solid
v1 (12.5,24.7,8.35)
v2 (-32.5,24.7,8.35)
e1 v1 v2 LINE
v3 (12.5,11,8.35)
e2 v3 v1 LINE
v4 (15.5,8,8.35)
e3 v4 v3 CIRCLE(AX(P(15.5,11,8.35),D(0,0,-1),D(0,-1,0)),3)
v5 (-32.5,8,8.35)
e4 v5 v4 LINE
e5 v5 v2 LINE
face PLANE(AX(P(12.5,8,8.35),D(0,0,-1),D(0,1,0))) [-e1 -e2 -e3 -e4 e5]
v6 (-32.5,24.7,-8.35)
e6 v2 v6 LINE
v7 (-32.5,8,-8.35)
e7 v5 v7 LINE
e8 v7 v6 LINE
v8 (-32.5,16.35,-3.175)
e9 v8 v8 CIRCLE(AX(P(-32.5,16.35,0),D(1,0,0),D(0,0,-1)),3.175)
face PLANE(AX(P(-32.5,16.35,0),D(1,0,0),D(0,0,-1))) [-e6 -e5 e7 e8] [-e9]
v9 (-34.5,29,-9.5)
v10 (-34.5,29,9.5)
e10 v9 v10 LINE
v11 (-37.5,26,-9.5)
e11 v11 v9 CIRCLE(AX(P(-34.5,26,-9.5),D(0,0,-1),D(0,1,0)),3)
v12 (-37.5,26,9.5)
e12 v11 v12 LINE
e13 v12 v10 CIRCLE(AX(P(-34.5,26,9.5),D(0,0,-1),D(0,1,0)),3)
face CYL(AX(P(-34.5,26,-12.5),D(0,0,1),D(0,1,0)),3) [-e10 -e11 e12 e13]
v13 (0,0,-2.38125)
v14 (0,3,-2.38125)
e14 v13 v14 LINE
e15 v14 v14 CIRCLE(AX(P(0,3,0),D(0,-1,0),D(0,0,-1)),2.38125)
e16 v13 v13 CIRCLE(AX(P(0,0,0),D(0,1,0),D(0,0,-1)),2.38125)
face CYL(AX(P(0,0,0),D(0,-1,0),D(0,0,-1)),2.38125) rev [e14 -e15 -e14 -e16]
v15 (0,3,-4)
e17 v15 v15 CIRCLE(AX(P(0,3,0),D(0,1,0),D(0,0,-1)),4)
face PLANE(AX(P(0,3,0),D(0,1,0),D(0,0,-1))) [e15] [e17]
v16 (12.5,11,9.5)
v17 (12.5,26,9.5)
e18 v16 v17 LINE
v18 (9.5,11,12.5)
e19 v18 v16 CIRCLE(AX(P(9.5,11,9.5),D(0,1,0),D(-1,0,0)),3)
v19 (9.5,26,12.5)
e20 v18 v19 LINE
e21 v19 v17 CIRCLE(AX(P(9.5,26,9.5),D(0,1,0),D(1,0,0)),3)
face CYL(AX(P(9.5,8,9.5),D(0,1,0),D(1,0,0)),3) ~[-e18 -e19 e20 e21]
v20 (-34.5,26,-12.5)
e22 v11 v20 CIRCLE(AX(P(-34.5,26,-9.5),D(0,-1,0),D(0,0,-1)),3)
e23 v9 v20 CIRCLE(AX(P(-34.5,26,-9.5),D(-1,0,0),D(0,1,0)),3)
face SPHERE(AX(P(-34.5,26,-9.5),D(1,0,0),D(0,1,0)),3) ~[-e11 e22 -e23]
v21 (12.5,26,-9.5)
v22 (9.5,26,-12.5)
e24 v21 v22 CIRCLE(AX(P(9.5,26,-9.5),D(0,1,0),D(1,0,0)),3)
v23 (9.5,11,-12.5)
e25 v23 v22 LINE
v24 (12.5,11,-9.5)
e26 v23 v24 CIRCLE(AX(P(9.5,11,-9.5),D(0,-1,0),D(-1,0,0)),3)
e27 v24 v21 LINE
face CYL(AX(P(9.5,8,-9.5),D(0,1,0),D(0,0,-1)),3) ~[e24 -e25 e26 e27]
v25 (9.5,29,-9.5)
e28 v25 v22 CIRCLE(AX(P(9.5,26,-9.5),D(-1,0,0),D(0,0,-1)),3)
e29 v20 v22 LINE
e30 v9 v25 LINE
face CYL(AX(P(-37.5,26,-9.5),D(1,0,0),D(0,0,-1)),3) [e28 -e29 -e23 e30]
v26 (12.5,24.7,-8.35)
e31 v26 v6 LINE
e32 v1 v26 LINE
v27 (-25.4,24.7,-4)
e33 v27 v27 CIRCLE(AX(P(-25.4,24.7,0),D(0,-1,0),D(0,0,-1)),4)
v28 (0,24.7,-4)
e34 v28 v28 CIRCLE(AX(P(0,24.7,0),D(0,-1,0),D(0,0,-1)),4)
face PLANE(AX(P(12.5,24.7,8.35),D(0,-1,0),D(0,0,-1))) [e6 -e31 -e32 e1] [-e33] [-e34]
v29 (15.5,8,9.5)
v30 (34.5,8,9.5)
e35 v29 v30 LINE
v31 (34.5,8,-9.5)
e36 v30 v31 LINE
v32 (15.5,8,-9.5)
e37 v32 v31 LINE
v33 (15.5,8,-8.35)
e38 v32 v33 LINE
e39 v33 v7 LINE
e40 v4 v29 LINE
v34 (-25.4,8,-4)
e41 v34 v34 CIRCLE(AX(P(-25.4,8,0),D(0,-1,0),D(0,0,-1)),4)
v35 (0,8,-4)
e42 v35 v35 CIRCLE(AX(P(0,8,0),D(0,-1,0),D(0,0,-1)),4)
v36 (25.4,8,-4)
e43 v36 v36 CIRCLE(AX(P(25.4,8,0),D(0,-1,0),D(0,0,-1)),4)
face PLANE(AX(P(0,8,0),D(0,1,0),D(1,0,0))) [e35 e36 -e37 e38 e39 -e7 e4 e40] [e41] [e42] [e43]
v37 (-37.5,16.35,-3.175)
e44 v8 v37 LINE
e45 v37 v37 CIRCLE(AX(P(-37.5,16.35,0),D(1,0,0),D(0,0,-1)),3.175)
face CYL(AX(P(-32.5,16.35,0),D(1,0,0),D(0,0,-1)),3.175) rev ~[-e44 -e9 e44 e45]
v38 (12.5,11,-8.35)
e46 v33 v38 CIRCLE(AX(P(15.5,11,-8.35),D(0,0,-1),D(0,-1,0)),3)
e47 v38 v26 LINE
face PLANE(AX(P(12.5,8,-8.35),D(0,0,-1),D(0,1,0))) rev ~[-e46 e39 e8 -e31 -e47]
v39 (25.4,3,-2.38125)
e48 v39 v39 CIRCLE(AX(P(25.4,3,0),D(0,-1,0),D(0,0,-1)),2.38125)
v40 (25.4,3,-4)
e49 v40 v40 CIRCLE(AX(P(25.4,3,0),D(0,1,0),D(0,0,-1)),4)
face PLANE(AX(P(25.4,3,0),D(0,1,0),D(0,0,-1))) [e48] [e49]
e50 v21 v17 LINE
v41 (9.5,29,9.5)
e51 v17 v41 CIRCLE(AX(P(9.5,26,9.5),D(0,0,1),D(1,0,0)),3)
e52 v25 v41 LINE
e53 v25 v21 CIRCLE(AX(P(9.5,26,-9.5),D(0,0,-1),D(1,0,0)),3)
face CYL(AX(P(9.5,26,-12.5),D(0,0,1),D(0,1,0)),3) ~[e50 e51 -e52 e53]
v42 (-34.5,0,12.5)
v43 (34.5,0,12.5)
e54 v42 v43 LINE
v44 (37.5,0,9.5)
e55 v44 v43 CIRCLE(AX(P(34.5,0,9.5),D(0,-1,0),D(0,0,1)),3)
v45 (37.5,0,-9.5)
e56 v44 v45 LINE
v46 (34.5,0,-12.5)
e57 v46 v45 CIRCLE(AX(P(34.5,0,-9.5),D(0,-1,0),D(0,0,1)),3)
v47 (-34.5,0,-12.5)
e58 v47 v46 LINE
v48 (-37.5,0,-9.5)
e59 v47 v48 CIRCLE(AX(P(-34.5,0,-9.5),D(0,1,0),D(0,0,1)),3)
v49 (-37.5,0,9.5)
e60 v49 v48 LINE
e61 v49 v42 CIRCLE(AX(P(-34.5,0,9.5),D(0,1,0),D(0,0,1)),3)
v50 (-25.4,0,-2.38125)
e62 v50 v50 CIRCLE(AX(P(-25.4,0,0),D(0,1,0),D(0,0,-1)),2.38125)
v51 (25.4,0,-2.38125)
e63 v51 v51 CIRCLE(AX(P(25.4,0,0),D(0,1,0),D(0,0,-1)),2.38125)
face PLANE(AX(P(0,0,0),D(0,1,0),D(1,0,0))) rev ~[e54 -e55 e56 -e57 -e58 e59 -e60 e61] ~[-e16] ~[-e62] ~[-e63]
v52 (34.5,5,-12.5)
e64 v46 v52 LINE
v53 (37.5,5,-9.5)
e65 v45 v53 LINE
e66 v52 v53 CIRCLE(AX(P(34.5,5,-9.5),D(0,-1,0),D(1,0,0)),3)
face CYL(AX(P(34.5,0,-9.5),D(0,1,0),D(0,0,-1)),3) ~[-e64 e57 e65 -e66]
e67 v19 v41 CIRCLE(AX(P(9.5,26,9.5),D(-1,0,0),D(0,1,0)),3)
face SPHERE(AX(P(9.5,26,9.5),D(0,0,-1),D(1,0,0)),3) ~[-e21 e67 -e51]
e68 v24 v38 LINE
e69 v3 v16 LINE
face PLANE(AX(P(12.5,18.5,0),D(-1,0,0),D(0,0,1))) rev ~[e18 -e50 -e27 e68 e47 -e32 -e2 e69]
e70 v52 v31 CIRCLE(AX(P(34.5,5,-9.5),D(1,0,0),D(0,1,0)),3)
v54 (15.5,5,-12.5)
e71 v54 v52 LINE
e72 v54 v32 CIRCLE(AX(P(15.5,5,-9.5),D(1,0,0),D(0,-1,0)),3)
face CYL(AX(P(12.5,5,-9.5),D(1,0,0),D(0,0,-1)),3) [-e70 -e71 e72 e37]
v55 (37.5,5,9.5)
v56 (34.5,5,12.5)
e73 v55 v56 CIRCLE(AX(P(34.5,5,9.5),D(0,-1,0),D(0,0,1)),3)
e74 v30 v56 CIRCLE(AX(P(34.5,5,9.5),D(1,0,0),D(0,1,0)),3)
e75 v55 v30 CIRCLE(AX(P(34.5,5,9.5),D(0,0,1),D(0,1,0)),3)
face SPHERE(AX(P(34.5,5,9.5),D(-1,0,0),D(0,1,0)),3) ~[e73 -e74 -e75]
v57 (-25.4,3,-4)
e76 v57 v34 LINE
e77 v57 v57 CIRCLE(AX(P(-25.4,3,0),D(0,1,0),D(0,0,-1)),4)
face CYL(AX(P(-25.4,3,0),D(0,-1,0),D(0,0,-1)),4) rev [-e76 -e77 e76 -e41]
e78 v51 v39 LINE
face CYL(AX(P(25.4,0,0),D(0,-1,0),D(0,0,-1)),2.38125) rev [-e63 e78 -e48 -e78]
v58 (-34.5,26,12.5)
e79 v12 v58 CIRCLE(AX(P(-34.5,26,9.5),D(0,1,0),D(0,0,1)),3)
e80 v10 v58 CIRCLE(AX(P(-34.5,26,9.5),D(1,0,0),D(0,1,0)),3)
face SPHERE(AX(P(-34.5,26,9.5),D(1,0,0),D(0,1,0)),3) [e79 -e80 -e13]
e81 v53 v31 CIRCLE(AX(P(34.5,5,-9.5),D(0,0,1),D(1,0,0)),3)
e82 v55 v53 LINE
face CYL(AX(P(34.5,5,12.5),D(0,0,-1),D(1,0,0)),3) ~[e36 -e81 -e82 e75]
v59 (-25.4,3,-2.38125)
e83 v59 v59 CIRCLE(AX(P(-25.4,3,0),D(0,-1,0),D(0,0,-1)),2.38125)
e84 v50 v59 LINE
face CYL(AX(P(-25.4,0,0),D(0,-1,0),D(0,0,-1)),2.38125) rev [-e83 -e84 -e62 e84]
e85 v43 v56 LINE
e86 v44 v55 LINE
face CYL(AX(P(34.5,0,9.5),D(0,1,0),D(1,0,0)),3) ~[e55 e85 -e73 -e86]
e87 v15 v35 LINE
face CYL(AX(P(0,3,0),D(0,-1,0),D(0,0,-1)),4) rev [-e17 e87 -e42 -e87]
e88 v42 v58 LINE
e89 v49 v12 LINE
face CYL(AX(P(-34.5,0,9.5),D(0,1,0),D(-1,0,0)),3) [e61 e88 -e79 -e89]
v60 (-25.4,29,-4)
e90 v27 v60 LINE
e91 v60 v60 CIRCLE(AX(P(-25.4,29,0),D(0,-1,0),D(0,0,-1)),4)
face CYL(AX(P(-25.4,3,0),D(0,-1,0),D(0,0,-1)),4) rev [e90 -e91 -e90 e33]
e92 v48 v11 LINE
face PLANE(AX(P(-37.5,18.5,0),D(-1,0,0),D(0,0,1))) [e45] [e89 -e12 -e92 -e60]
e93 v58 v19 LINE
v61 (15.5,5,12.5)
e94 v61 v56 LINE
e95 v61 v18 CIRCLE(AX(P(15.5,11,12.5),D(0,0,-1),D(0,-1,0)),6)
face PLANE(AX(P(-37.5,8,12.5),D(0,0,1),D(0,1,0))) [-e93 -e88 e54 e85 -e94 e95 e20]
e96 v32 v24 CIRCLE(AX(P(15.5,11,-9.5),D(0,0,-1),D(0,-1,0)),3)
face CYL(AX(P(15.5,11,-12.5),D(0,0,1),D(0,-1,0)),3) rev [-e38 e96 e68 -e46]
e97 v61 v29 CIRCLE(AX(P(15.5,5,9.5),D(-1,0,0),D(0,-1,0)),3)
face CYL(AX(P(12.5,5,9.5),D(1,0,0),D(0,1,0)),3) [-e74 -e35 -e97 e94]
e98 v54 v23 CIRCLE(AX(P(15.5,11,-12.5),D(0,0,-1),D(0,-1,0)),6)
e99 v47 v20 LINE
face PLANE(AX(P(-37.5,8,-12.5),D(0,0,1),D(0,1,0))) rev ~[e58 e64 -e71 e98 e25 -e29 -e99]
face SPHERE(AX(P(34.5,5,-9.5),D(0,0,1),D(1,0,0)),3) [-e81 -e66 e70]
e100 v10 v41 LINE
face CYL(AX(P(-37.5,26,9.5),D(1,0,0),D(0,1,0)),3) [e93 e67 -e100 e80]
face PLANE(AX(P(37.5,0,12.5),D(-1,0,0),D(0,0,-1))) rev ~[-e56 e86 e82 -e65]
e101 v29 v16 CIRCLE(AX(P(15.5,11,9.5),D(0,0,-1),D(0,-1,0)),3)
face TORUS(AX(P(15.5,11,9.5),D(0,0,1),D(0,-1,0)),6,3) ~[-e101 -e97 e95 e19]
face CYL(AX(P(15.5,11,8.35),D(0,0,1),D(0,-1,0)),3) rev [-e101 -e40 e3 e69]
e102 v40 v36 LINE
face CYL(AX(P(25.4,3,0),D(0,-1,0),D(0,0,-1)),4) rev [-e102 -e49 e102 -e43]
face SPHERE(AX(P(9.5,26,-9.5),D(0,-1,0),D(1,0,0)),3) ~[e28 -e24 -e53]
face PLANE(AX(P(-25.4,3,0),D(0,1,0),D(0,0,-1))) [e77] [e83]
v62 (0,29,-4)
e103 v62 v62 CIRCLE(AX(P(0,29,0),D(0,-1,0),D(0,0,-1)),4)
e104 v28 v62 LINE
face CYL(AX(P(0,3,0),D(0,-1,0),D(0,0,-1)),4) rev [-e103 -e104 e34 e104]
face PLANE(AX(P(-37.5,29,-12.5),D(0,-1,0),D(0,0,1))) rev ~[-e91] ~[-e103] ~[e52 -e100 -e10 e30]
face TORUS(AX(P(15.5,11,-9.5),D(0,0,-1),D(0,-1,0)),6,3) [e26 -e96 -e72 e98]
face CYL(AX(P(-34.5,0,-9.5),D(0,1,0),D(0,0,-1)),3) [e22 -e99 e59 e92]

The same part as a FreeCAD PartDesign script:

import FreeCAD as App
import Part
import Sketcher
Q = App.Units.Quantity


def edges_at(feature, points):
    """Names of the edges that pass closest to the given points."""
    edges = feature.Shape.Edges
    near = lambda p: min(range(len(edges)), key=lambda i: edges[i].distToShape(Part.Vertex(*p))[0])
    return sorted({f"Edge{near(p) + 1}" for p in points})

doc = App.newDocument("Part")
body = doc.addObject("PartDesign::Body", "Body")

sketch1 = doc.addObject("Sketcher::SketchObject", "Sketch")
body.addObject(sketch1)
sketch1.AttachmentSupport = (doc.XZ_Plane, [""])
sketch1.MapMode = "FlatFace"
sketch1.addGeometry(Part.LineSegment(App.Vector(-37.5, -12.5, 0), App.Vector(-37.5, 12.5, 0)), False)
sketch1.addGeometry(Part.LineSegment(App.Vector(-37.5, 12.5, 0), App.Vector(37.5, 12.5, 0)), False)
sketch1.addGeometry(Part.LineSegment(App.Vector(37.5, 12.5, 0), App.Vector(37.5, -12.5, 0)), False)
sketch1.addGeometry(Part.LineSegment(App.Vector(37.5, -12.5, 0), App.Vector(-37.5, -12.5, 0)), False)
sketch1.addConstraint(Sketcher.Constraint("Coincident", 0, 2, 1, 1))
sketch1.addConstraint(Sketcher.Constraint("Coincident", 1, 2, 2, 1))
sketch1.addConstraint(Sketcher.Constraint("Coincident", 2, 2, 3, 1))
sketch1.addConstraint(Sketcher.Constraint("Coincident", 3, 2, 0, 1))
sketch1.addConstraint(Sketcher.Constraint("Vertical", 0))
sketch1.addConstraint(Sketcher.Constraint("Horizontal", 1))
sketch1.addConstraint(Sketcher.Constraint("Vertical", 2))
sketch1.addConstraint(Sketcher.Constraint("Horizontal", 3))
sketch1.addConstraint(Sketcher.Constraint("Symmetric", 0, 2, 2, 2, -1, 1))
sketch1.addConstraint(Sketcher.Constraint("DistanceX", 1, 1, 1, 2, Q("75 mm")))
sketch1.addConstraint(Sketcher.Constraint("DistanceY", 0, 1, 0, 2, Q("25 mm")))
pad1 = doc.addObject("PartDesign::Pad", "Pad")
body.addObject(pad1)
pad1.Profile = sketch1
pad1.Length = 8
pad1.Reversed = True

sketch2 = doc.addObject("Sketcher::SketchObject", "Sketch001")
body.addObject(sketch2)
sketch2.AttachmentSupport = (doc.YZ_Plane, [""])
sketch2.MapMode = "FlatFace"
sketch2.AttachmentOffset = App.Placement(App.Vector(0, 0, -37.5), App.Rotation())
sketch2.addGeometry(Part.LineSegment(App.Vector(29, -12.5, 0), App.Vector(8, -12.5, 0)), False)
sketch2.addGeometry(Part.LineSegment(App.Vector(8, -12.5, 0), App.Vector(8, 12.5, 0)), False)
sketch2.addGeometry(Part.LineSegment(App.Vector(8, 12.5, 0), App.Vector(29, 12.5, 0)), False)
sketch2.addGeometry(Part.LineSegment(App.Vector(29, 12.5, 0), App.Vector(29, -12.5, 0)), False)
sketch2.addConstraint(Sketcher.Constraint("Coincident", 0, 2, 1, 1))
sketch2.addConstraint(Sketcher.Constraint("Coincident", 1, 2, 2, 1))
sketch2.addConstraint(Sketcher.Constraint("Coincident", 2, 2, 3, 1))
sketch2.addConstraint(Sketcher.Constraint("Coincident", 3, 2, 0, 1))
sketch2.addConstraint(Sketcher.Constraint("Horizontal", 0))
sketch2.addConstraint(Sketcher.Constraint("Vertical", 1))
sketch2.addConstraint(Sketcher.Constraint("Horizontal", 2))
sketch2.addConstraint(Sketcher.Constraint("Vertical", 3))
sketch2.addConstraint(Sketcher.Constraint("DistanceX", 0, 2, 0, 1, Q("21 mm")))
sketch2.addConstraint(Sketcher.Constraint("DistanceY", 1, 1, 1, 2, Q("25 mm")))
sketch2.addConstraint(Sketcher.Constraint("DistanceX", -1, 1, 0, 2, Q("8 mm")))
sketch2.addConstraint(Sketcher.Constraint("DistanceY", 0, 2, -1, 1, Q("12.5 mm")))
pad2 = doc.addObject("PartDesign::Pad", "Pad001")
body.addObject(pad2)
pad2.Profile = sketch2
pad2.Length = 50

sketch3 = doc.addObject("Sketcher::SketchObject", "Sketch002")
body.addObject(sketch3)
sketch3.AttachmentSupport = (doc.YZ_Plane, [""])
sketch3.MapMode = "FlatFace"
sketch3.AttachmentOffset = App.Placement(App.Vector(0, 0, 12.5), App.Rotation())
sketch3.addGeometry(Part.LineSegment(App.Vector(24.7, 8.35, 0), App.Vector(8, 8.35, 0)), False)
sketch3.addGeometry(Part.LineSegment(App.Vector(8, 8.35, 0), App.Vector(8, -8.35, 0)), False)
sketch3.addGeometry(Part.LineSegment(App.Vector(8, -8.35, 0), App.Vector(24.7, -8.35, 0)), False)
sketch3.addGeometry(Part.LineSegment(App.Vector(24.7, -8.35, 0), App.Vector(24.7, 8.35, 0)), False)
sketch3.addConstraint(Sketcher.Constraint("Coincident", 0, 2, 1, 1))
sketch3.addConstraint(Sketcher.Constraint("Coincident", 1, 2, 2, 1))
sketch3.addConstraint(Sketcher.Constraint("Coincident", 2, 2, 3, 1))
sketch3.addConstraint(Sketcher.Constraint("Coincident", 3, 2, 0, 1))
sketch3.addConstraint(Sketcher.Constraint("Horizontal", 0))
sketch3.addConstraint(Sketcher.Constraint("Vertical", 1))
sketch3.addConstraint(Sketcher.Constraint("Horizontal", 2))
sketch3.addConstraint(Sketcher.Constraint("Vertical", 3))
sketch3.addConstraint(Sketcher.Constraint("Equal", 2, 1))
sketch3.addConstraint(Sketcher.Constraint("DistanceX", 0, 2, 0, 1, Q("16.7 mm")))
sketch3.addConstraint(Sketcher.Constraint("DistanceX", -1, 1, 0, 2, Q("8 mm")))
sketch3.addConstraint(Sketcher.Constraint("DistanceY", -1, 1, 0, 2, Q("8.35 mm")))
pocket1 = doc.addObject("PartDesign::Pocket", "Pocket")
body.addObject(pocket1)
pocket1.Profile = sketch3
pocket1.Length = 45

sketch4 = doc.addObject("Sketcher::SketchObject", "Sketch003")
body.addObject(sketch4)
sketch4.AttachmentSupport = (doc.XZ_Plane, [""])
sketch4.MapMode = "FlatFace"
sketch4.addGeometry(Part.Circle(App.Vector(0, 0, 0), App.Vector(0, 0, 1), 2.38125), False)
sketch4.addGeometry(Part.Circle(App.Vector(25.4, 0, 0), App.Vector(0, 0, 1), 2.38125), False)
sketch4.addGeometry(Part.Circle(App.Vector(-25.4, 0, 0), App.Vector(0, 0, 1), 2.38125), False)
sketch4.addConstraint(Sketcher.Constraint("Coincident", 0, 3, -1, 1))
sketch4.addConstraint(Sketcher.Constraint("Equal", 0, 1))
sketch4.addConstraint(Sketcher.Constraint("Equal", 1, 2))
sketch4.addConstraint(Sketcher.Constraint("Symmetric", 1, 3, 2, 3, -1, 1))
sketch4.addConstraint(Sketcher.Constraint("PointOnObject", 1, 3, -1))
sketch4.addConstraint(Sketcher.Constraint("Diameter", 0, Q("4.7625 mm")))
sketch4.addConstraint(Sketcher.Constraint("DistanceX", -1, 1, 1, 3, Q("25.4 mm")))
pocket2 = doc.addObject("PartDesign::Pocket", "Pocket001")
body.addObject(pocket2)
pocket2.Profile = sketch4
pocket2.Type = "ThroughAll"

sketch5 = doc.addObject("Sketcher::SketchObject", "Sketch004")
body.addObject(sketch5)
sketch5.AttachmentSupport = (doc.XZ_Plane, [""])
sketch5.MapMode = "FlatFace"
sketch5.AttachmentOffset = App.Placement(App.Vector(0, 0, -8), App.Rotation())
sketch5.addGeometry(Part.Circle(App.Vector(0, 0, 0), App.Vector(0, 0, 1), 4), False)
sketch5.addGeometry(Part.Circle(App.Vector(25.4, 0, 0), App.Vector(0, 0, 1), 4), False)
sketch5.addGeometry(Part.Circle(App.Vector(-25.4, 0, 0), App.Vector(0, 0, 1), 4), False)
sketch5.addConstraint(Sketcher.Constraint("Coincident", 0, 3, -1, 1))
sketch5.addConstraint(Sketcher.Constraint("Equal", 0, 1))
sketch5.addConstraint(Sketcher.Constraint("Equal", 1, 2))
sketch5.addConstraint(Sketcher.Constraint("Symmetric", 1, 3, 2, 3, -1, 1))
sketch5.addConstraint(Sketcher.Constraint("PointOnObject", 1, 3, -1))
sketch5.addConstraint(Sketcher.Constraint("Diameter", 0, Q("8 mm")))
sketch5.addConstraint(Sketcher.Constraint("DistanceX", -1, 1, 1, 3, Q("25.4 mm")))
pocket3 = doc.addObject("PartDesign::Pocket", "Pocket002")
body.addObject(pocket3)
pocket3.Profile = sketch5
pocket3.Type = "TwoLengths"
pocket3.Length = 45.760474
pocket3.Length2 = 5
doc.recompute()

fillet = doc.addObject("PartDesign::Fillet", "Fillet")
body.addObject(fillet)
fillet.Base = (pocket3, edges_at(pocket3, [
    (25, 8, 12.5),
    (12.5, 18.5, -12.5),
    (12.5, 29, 0),
    (-12.5, 29, -12.5),
    (12.5, 18.5, 12.5),
    (-12.5, 29, 12.5),
    (12.5, 8, -10.425),
    (-37.5, 29, 0),
    (12.5, 8, 10.425),
    (37.5, 8, 0),
    (37.5, 4, 12.5),
    (-37.5, 14.5, 12.5),
    (-37.5, 14.5, -12.5),
    (37.5, 4, -12.5),
    (25, 8, -12.5),
]))
fillet.Radius = 3

sketch6 = doc.addObject("Sketcher::SketchObject", "Sketch005")
body.addObject(sketch6)
sketch6.AttachmentSupport = (doc.YZ_Plane, [""])
sketch6.MapMode = "FlatFace"
sketch6.AttachmentOffset = App.Placement(App.Vector(0, 0, -32.5), App.Rotation())
sketch6.addGeometry(Part.Circle(App.Vector(16.35, 0, 0), App.Vector(0, 0, 1), 3.175), False)
sketch6.addConstraint(Sketcher.Constraint("PointOnObject", 0, 3, -1))
sketch6.addConstraint(Sketcher.Constraint("Diameter", 0, Q("6.35 mm")))
sketch6.addConstraint(Sketcher.Constraint("DistanceX", -1, 1, 0, 3, Q("16.35 mm")))
pocket4 = doc.addObject("PartDesign::Pocket", "Pocket003")
body.addObject(pocket4)
pocket4.Profile = sketch6
pocket4.Type = "ThroughAll"

doc.recompute()
